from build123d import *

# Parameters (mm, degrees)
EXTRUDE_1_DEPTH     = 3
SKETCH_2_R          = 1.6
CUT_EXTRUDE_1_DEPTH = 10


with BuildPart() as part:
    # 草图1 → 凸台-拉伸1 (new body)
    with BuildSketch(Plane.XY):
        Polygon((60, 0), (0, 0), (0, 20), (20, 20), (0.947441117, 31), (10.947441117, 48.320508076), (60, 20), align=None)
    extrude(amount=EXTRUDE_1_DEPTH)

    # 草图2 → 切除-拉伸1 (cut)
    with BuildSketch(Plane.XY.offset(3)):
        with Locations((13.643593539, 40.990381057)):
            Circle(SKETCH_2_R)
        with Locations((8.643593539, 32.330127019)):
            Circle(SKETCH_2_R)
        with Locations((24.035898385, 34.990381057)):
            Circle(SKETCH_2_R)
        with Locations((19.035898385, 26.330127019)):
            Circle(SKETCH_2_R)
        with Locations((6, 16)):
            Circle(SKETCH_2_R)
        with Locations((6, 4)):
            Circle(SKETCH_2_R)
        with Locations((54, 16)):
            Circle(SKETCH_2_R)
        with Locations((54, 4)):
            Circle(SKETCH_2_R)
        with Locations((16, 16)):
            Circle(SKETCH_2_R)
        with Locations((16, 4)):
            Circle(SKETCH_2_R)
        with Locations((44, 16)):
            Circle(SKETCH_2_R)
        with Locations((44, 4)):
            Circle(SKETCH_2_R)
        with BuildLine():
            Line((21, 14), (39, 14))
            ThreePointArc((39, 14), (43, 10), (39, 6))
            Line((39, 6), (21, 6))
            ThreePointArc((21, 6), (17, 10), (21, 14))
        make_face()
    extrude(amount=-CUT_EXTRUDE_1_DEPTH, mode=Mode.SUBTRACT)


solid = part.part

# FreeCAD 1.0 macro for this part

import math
import FreeCAD as App
import Part
import Sketcher
Q = App.Units.Quantity

doc = App.newDocument("Part")
body = doc.addObject("PartDesign::Body", "Body")

# Sketch on XY plane
sketch1 = body.newObject("Sketcher::SketchObject", "Sketch")
sketch1.AttachmentSupport = (doc.getObject("XY_Plane"), [""])
sketch1.MapMode = "FlatFace"
sketch1.addGeometry([
    Part.LineSegment(App.Vector(0, 0, 0), App.Vector(60, 0, 0)),  # 0
    Part.LineSegment(App.Vector(60, 0, 0), App.Vector(60, 20, 0)),  # 1
    Part.LineSegment(App.Vector(60, 20, 0), App.Vector(10.947441, 48.320508, 0)),  # 2
    Part.LineSegment(App.Vector(10.947441, 48.320508, 0), App.Vector(0.947441, 31, 0)),  # 3
    Part.LineSegment(App.Vector(0.947441, 31, 0), App.Vector(20, 20, 0)),  # 4
    Part.LineSegment(App.Vector(20, 20, 0), App.Vector(0, 20, 0)),  # 5
    Part.LineSegment(App.Vector(0, 20, 0), App.Vector(0, 0, 0)),  # 6
], False)
sketch1.addConstraint([
    Sketcher.Constraint("Coincident", 0, 2, 1, 1),
    Sketcher.Constraint("Coincident", 1, 2, 2, 1),
    Sketcher.Constraint("Coincident", 2, 2, 3, 1),
    Sketcher.Constraint("Coincident", 3, 2, 4, 1),
    Sketcher.Constraint("Coincident", 4, 2, 5, 1),
    Sketcher.Constraint("Coincident", 5, 2, 6, 1),
    Sketcher.Constraint("Coincident", 6, 2, 0, 1),
    Sketcher.Constraint("Horizontal", 0),
    Sketcher.Constraint("Vertical", 1),
    Sketcher.Constraint("Horizontal", 5),
    Sketcher.Constraint("Vertical", 6),
    Sketcher.Constraint("Coincident", 6, 2, -1, 1),
    Sketcher.Constraint("Perpendicular", 2, 3),
    Sketcher.Constraint("Perpendicular", 3, 4),
    Sketcher.Constraint("Horizontal", 1, 2, 4, 2),
    Sketcher.Constraint("Equal", 5, 1),
    Sketcher.Constraint("DistanceX", 0, 1, 0, 2, Q("60 mm")),
    Sketcher.Constraint("DistanceX", 5, 2, 5, 1, Q("20 mm")),
    Sketcher.Constraint("Angle", 2, Q("150 deg")),
    Sketcher.Constraint("Distance", 4, Q("22 mm")),
])
pad1 = body.newObject("PartDesign::Pad", "Pad")
pad1.Profile = sketch1
pad1.Length = 3

# Sketch on XY plane
sketch2 = body.newObject("Sketcher::SketchObject", "Sketch001")
sketch2.AttachmentSupport = (doc.getObject("XY_Plane"), [""])
sketch2.MapMode = "FlatFace"
sketch2.AttachmentOffset = App.Placement(App.Vector(0, 0, 3), App.Rotation())
sketch2.addGeometry([
    Part.Circle(App.Vector(13.643594, 40.990381, 0), App.Vector(0, 0, 1), 1.6),  # 0
    Part.Circle(App.Vector(8.643594, 32.330127, 0), App.Vector(0, 0, 1), 1.6),  # 1
    Part.Circle(App.Vector(24.035898, 34.990381, 0), App.Vector(0, 0, 1), 1.6),  # 2
    Part.Circle(App.Vector(19.035898, 26.330127, 0), App.Vector(0, 0, 1), 1.6),  # 3
    Part.Circle(App.Vector(6, 16, 0), App.Vector(0, 0, 1), 1.6),  # 4
    Part.Circle(App.Vector(6, 4, 0), App.Vector(0, 0, 1), 1.6),  # 5
    Part.Circle(App.Vector(54, 16, 0), App.Vector(0, 0, 1), 1.6),  # 6
    Part.Circle(App.Vector(54, 4, 0), App.Vector(0, 0, 1), 1.6),  # 7
    Part.Circle(App.Vector(16, 16, 0), App.Vector(0, 0, 1), 1.6),  # 8
    Part.Circle(App.Vector(16, 4, 0), App.Vector(0, 0, 1), 1.6),  # 9
    Part.Circle(App.Vector(44, 16, 0), App.Vector(0, 0, 1), 1.6),  # 10
    Part.Circle(App.Vector(44, 4, 0), App.Vector(0, 0, 1), 1.6),  # 11
    Part.LineSegment(App.Vector(39, 14, 0), App.Vector(21, 14, 0)),  # 12
    Part.ArcOfCircle(Part.Circle(App.Vector(21, 10, 0), App.Vector(0, 0, 1), 4), math.radians(90), math.radians(270)),  # 13
    Part.LineSegment(App.Vector(21, 6, 0), App.Vector(39, 6, 0)),  # 14
    Part.ArcOfCircle(Part.Circle(App.Vector(39, 10, 0), App.Vector(0, 0, 1), 4), math.radians(-90), math.radians(90)),  # 15
], False)
sketch2.addConstraint([
    Sketcher.Constraint("Tangent", 12, 2, 13, 1),
    Sketcher.Constraint("Tangent", 13, 2, 14, 1),
    Sketcher.Constraint("Tangent", 14, 2, 15, 1),
    Sketcher.Constraint("Tangent", 15, 2, 12, 1),
    Sketcher.Constraint("Horizontal", 12),
    Sketcher.Constraint("Horizontal", 14),
    Sketcher.Constraint("Equal", 0, 1),
    Sketcher.Constraint("Equal", 1, 2),
    Sketcher.Constraint("Equal", 2, 3),
    Sketcher.Constraint("Equal", 3, 4),
    Sketcher.Constraint("Equal", 4, 5),
    Sketcher.Constraint("Equal", 5, 6),
    Sketcher.Constraint("Equal", 6, 7),
    Sketcher.Constraint("Equal", 7, 8),
    Sketcher.Constraint("Equal", 8, 9),
    Sketcher.Constraint("Equal", 9, 10),
    Sketcher.Constraint("Equal", 10, 11),
    Sketcher.Constraint("Horizontal", 4, 3, 6, 3),
    Sketcher.Constraint("Horizontal", 5, 3, 7, 3),
    Sketcher.Constraint("Horizontal", 6, 3, 8, 3),
    Sketcher.Constraint("Horizontal", 7, 3, 9, 3),
    Sketcher.Constraint("Horizontal", 8, 3, 10, 3),
    Sketcher.Constraint("Horizontal", 9, 3, 11, 3),
    Sketcher.Constraint("Vertical", 4, 3, 5, 3),
    Sketcher.Constraint("Vertical", 6, 3, 7, 3),
    Sketcher.Constraint("Vertical", 8, 3, 9, 3),
    Sketcher.Constraint("Vertical", 10, 3, 11, 3),
    Sketcher.Constraint("Radius", 13, Q("4 mm")),
    Sketcher.Constraint("Diameter", 0, Q("3.2 mm")),
    Sketcher.Constraint("DistanceX", 12, 2, 12, 1, Q("18 mm")),
    Sketcher.Constraint("DistanceX", -1, 1, 4, 3, Q("6 mm")),
    Sketcher.Constraint("DistanceY", -1, 1, 4, 3, Q("16 mm")),
    Sketcher.Constraint("DistanceY", -1, 1, 5, 3, Q("4 mm")),
    Sketcher.Constraint("DistanceX", -1, 1, 6, 3, Q("54 mm")),
    Sketcher.Constraint("DistanceX", -1, 1, 8, 3, Q("16 mm")),
    Sketcher.Constraint("DistanceX", -1, 1, 10, 3, Q("44 mm")),
    Sketcher.Constraint("DistanceX", -1, 1, 13, 3, Q("21 mm")),
    Sketcher.Constraint("DistanceY", -1, 1, 13, 3, Q("10 mm")),
    Sketcher.Constraint("DistanceX", 1, 3, 0, 3, Q("5 mm")),
    Sketcher.Constraint("DistanceY", 2, 3, 0, 3, Q("6 mm")),
    Sketcher.Constraint("DistanceX", 3, 3, 2, 3, Q("5 mm")),
    Sketcher.Constraint("DistanceY", 3, 3, 1, 3, Q("6 mm")),
    Sketcher.Constraint("DistanceX", -1, 1, 2, 3, Q("24.035898 mm")),
    Sketcher.Constraint("DistanceY", -1, 1, 0, 3, Q("40.990381 mm")),
    Sketcher.Constraint("DistanceX", -1, 1, 0, 3, Q("13.643594 mm")),
    Sketcher.Constraint("DistanceY", -1, 1, 1, 3, Q("32.330127 mm")),
])
pocket1 = body.newObject("PartDesign::Pocket", "Pocket")
pocket1.Profile = sketch2
pocket1.Length = 10

doc.recompute()
